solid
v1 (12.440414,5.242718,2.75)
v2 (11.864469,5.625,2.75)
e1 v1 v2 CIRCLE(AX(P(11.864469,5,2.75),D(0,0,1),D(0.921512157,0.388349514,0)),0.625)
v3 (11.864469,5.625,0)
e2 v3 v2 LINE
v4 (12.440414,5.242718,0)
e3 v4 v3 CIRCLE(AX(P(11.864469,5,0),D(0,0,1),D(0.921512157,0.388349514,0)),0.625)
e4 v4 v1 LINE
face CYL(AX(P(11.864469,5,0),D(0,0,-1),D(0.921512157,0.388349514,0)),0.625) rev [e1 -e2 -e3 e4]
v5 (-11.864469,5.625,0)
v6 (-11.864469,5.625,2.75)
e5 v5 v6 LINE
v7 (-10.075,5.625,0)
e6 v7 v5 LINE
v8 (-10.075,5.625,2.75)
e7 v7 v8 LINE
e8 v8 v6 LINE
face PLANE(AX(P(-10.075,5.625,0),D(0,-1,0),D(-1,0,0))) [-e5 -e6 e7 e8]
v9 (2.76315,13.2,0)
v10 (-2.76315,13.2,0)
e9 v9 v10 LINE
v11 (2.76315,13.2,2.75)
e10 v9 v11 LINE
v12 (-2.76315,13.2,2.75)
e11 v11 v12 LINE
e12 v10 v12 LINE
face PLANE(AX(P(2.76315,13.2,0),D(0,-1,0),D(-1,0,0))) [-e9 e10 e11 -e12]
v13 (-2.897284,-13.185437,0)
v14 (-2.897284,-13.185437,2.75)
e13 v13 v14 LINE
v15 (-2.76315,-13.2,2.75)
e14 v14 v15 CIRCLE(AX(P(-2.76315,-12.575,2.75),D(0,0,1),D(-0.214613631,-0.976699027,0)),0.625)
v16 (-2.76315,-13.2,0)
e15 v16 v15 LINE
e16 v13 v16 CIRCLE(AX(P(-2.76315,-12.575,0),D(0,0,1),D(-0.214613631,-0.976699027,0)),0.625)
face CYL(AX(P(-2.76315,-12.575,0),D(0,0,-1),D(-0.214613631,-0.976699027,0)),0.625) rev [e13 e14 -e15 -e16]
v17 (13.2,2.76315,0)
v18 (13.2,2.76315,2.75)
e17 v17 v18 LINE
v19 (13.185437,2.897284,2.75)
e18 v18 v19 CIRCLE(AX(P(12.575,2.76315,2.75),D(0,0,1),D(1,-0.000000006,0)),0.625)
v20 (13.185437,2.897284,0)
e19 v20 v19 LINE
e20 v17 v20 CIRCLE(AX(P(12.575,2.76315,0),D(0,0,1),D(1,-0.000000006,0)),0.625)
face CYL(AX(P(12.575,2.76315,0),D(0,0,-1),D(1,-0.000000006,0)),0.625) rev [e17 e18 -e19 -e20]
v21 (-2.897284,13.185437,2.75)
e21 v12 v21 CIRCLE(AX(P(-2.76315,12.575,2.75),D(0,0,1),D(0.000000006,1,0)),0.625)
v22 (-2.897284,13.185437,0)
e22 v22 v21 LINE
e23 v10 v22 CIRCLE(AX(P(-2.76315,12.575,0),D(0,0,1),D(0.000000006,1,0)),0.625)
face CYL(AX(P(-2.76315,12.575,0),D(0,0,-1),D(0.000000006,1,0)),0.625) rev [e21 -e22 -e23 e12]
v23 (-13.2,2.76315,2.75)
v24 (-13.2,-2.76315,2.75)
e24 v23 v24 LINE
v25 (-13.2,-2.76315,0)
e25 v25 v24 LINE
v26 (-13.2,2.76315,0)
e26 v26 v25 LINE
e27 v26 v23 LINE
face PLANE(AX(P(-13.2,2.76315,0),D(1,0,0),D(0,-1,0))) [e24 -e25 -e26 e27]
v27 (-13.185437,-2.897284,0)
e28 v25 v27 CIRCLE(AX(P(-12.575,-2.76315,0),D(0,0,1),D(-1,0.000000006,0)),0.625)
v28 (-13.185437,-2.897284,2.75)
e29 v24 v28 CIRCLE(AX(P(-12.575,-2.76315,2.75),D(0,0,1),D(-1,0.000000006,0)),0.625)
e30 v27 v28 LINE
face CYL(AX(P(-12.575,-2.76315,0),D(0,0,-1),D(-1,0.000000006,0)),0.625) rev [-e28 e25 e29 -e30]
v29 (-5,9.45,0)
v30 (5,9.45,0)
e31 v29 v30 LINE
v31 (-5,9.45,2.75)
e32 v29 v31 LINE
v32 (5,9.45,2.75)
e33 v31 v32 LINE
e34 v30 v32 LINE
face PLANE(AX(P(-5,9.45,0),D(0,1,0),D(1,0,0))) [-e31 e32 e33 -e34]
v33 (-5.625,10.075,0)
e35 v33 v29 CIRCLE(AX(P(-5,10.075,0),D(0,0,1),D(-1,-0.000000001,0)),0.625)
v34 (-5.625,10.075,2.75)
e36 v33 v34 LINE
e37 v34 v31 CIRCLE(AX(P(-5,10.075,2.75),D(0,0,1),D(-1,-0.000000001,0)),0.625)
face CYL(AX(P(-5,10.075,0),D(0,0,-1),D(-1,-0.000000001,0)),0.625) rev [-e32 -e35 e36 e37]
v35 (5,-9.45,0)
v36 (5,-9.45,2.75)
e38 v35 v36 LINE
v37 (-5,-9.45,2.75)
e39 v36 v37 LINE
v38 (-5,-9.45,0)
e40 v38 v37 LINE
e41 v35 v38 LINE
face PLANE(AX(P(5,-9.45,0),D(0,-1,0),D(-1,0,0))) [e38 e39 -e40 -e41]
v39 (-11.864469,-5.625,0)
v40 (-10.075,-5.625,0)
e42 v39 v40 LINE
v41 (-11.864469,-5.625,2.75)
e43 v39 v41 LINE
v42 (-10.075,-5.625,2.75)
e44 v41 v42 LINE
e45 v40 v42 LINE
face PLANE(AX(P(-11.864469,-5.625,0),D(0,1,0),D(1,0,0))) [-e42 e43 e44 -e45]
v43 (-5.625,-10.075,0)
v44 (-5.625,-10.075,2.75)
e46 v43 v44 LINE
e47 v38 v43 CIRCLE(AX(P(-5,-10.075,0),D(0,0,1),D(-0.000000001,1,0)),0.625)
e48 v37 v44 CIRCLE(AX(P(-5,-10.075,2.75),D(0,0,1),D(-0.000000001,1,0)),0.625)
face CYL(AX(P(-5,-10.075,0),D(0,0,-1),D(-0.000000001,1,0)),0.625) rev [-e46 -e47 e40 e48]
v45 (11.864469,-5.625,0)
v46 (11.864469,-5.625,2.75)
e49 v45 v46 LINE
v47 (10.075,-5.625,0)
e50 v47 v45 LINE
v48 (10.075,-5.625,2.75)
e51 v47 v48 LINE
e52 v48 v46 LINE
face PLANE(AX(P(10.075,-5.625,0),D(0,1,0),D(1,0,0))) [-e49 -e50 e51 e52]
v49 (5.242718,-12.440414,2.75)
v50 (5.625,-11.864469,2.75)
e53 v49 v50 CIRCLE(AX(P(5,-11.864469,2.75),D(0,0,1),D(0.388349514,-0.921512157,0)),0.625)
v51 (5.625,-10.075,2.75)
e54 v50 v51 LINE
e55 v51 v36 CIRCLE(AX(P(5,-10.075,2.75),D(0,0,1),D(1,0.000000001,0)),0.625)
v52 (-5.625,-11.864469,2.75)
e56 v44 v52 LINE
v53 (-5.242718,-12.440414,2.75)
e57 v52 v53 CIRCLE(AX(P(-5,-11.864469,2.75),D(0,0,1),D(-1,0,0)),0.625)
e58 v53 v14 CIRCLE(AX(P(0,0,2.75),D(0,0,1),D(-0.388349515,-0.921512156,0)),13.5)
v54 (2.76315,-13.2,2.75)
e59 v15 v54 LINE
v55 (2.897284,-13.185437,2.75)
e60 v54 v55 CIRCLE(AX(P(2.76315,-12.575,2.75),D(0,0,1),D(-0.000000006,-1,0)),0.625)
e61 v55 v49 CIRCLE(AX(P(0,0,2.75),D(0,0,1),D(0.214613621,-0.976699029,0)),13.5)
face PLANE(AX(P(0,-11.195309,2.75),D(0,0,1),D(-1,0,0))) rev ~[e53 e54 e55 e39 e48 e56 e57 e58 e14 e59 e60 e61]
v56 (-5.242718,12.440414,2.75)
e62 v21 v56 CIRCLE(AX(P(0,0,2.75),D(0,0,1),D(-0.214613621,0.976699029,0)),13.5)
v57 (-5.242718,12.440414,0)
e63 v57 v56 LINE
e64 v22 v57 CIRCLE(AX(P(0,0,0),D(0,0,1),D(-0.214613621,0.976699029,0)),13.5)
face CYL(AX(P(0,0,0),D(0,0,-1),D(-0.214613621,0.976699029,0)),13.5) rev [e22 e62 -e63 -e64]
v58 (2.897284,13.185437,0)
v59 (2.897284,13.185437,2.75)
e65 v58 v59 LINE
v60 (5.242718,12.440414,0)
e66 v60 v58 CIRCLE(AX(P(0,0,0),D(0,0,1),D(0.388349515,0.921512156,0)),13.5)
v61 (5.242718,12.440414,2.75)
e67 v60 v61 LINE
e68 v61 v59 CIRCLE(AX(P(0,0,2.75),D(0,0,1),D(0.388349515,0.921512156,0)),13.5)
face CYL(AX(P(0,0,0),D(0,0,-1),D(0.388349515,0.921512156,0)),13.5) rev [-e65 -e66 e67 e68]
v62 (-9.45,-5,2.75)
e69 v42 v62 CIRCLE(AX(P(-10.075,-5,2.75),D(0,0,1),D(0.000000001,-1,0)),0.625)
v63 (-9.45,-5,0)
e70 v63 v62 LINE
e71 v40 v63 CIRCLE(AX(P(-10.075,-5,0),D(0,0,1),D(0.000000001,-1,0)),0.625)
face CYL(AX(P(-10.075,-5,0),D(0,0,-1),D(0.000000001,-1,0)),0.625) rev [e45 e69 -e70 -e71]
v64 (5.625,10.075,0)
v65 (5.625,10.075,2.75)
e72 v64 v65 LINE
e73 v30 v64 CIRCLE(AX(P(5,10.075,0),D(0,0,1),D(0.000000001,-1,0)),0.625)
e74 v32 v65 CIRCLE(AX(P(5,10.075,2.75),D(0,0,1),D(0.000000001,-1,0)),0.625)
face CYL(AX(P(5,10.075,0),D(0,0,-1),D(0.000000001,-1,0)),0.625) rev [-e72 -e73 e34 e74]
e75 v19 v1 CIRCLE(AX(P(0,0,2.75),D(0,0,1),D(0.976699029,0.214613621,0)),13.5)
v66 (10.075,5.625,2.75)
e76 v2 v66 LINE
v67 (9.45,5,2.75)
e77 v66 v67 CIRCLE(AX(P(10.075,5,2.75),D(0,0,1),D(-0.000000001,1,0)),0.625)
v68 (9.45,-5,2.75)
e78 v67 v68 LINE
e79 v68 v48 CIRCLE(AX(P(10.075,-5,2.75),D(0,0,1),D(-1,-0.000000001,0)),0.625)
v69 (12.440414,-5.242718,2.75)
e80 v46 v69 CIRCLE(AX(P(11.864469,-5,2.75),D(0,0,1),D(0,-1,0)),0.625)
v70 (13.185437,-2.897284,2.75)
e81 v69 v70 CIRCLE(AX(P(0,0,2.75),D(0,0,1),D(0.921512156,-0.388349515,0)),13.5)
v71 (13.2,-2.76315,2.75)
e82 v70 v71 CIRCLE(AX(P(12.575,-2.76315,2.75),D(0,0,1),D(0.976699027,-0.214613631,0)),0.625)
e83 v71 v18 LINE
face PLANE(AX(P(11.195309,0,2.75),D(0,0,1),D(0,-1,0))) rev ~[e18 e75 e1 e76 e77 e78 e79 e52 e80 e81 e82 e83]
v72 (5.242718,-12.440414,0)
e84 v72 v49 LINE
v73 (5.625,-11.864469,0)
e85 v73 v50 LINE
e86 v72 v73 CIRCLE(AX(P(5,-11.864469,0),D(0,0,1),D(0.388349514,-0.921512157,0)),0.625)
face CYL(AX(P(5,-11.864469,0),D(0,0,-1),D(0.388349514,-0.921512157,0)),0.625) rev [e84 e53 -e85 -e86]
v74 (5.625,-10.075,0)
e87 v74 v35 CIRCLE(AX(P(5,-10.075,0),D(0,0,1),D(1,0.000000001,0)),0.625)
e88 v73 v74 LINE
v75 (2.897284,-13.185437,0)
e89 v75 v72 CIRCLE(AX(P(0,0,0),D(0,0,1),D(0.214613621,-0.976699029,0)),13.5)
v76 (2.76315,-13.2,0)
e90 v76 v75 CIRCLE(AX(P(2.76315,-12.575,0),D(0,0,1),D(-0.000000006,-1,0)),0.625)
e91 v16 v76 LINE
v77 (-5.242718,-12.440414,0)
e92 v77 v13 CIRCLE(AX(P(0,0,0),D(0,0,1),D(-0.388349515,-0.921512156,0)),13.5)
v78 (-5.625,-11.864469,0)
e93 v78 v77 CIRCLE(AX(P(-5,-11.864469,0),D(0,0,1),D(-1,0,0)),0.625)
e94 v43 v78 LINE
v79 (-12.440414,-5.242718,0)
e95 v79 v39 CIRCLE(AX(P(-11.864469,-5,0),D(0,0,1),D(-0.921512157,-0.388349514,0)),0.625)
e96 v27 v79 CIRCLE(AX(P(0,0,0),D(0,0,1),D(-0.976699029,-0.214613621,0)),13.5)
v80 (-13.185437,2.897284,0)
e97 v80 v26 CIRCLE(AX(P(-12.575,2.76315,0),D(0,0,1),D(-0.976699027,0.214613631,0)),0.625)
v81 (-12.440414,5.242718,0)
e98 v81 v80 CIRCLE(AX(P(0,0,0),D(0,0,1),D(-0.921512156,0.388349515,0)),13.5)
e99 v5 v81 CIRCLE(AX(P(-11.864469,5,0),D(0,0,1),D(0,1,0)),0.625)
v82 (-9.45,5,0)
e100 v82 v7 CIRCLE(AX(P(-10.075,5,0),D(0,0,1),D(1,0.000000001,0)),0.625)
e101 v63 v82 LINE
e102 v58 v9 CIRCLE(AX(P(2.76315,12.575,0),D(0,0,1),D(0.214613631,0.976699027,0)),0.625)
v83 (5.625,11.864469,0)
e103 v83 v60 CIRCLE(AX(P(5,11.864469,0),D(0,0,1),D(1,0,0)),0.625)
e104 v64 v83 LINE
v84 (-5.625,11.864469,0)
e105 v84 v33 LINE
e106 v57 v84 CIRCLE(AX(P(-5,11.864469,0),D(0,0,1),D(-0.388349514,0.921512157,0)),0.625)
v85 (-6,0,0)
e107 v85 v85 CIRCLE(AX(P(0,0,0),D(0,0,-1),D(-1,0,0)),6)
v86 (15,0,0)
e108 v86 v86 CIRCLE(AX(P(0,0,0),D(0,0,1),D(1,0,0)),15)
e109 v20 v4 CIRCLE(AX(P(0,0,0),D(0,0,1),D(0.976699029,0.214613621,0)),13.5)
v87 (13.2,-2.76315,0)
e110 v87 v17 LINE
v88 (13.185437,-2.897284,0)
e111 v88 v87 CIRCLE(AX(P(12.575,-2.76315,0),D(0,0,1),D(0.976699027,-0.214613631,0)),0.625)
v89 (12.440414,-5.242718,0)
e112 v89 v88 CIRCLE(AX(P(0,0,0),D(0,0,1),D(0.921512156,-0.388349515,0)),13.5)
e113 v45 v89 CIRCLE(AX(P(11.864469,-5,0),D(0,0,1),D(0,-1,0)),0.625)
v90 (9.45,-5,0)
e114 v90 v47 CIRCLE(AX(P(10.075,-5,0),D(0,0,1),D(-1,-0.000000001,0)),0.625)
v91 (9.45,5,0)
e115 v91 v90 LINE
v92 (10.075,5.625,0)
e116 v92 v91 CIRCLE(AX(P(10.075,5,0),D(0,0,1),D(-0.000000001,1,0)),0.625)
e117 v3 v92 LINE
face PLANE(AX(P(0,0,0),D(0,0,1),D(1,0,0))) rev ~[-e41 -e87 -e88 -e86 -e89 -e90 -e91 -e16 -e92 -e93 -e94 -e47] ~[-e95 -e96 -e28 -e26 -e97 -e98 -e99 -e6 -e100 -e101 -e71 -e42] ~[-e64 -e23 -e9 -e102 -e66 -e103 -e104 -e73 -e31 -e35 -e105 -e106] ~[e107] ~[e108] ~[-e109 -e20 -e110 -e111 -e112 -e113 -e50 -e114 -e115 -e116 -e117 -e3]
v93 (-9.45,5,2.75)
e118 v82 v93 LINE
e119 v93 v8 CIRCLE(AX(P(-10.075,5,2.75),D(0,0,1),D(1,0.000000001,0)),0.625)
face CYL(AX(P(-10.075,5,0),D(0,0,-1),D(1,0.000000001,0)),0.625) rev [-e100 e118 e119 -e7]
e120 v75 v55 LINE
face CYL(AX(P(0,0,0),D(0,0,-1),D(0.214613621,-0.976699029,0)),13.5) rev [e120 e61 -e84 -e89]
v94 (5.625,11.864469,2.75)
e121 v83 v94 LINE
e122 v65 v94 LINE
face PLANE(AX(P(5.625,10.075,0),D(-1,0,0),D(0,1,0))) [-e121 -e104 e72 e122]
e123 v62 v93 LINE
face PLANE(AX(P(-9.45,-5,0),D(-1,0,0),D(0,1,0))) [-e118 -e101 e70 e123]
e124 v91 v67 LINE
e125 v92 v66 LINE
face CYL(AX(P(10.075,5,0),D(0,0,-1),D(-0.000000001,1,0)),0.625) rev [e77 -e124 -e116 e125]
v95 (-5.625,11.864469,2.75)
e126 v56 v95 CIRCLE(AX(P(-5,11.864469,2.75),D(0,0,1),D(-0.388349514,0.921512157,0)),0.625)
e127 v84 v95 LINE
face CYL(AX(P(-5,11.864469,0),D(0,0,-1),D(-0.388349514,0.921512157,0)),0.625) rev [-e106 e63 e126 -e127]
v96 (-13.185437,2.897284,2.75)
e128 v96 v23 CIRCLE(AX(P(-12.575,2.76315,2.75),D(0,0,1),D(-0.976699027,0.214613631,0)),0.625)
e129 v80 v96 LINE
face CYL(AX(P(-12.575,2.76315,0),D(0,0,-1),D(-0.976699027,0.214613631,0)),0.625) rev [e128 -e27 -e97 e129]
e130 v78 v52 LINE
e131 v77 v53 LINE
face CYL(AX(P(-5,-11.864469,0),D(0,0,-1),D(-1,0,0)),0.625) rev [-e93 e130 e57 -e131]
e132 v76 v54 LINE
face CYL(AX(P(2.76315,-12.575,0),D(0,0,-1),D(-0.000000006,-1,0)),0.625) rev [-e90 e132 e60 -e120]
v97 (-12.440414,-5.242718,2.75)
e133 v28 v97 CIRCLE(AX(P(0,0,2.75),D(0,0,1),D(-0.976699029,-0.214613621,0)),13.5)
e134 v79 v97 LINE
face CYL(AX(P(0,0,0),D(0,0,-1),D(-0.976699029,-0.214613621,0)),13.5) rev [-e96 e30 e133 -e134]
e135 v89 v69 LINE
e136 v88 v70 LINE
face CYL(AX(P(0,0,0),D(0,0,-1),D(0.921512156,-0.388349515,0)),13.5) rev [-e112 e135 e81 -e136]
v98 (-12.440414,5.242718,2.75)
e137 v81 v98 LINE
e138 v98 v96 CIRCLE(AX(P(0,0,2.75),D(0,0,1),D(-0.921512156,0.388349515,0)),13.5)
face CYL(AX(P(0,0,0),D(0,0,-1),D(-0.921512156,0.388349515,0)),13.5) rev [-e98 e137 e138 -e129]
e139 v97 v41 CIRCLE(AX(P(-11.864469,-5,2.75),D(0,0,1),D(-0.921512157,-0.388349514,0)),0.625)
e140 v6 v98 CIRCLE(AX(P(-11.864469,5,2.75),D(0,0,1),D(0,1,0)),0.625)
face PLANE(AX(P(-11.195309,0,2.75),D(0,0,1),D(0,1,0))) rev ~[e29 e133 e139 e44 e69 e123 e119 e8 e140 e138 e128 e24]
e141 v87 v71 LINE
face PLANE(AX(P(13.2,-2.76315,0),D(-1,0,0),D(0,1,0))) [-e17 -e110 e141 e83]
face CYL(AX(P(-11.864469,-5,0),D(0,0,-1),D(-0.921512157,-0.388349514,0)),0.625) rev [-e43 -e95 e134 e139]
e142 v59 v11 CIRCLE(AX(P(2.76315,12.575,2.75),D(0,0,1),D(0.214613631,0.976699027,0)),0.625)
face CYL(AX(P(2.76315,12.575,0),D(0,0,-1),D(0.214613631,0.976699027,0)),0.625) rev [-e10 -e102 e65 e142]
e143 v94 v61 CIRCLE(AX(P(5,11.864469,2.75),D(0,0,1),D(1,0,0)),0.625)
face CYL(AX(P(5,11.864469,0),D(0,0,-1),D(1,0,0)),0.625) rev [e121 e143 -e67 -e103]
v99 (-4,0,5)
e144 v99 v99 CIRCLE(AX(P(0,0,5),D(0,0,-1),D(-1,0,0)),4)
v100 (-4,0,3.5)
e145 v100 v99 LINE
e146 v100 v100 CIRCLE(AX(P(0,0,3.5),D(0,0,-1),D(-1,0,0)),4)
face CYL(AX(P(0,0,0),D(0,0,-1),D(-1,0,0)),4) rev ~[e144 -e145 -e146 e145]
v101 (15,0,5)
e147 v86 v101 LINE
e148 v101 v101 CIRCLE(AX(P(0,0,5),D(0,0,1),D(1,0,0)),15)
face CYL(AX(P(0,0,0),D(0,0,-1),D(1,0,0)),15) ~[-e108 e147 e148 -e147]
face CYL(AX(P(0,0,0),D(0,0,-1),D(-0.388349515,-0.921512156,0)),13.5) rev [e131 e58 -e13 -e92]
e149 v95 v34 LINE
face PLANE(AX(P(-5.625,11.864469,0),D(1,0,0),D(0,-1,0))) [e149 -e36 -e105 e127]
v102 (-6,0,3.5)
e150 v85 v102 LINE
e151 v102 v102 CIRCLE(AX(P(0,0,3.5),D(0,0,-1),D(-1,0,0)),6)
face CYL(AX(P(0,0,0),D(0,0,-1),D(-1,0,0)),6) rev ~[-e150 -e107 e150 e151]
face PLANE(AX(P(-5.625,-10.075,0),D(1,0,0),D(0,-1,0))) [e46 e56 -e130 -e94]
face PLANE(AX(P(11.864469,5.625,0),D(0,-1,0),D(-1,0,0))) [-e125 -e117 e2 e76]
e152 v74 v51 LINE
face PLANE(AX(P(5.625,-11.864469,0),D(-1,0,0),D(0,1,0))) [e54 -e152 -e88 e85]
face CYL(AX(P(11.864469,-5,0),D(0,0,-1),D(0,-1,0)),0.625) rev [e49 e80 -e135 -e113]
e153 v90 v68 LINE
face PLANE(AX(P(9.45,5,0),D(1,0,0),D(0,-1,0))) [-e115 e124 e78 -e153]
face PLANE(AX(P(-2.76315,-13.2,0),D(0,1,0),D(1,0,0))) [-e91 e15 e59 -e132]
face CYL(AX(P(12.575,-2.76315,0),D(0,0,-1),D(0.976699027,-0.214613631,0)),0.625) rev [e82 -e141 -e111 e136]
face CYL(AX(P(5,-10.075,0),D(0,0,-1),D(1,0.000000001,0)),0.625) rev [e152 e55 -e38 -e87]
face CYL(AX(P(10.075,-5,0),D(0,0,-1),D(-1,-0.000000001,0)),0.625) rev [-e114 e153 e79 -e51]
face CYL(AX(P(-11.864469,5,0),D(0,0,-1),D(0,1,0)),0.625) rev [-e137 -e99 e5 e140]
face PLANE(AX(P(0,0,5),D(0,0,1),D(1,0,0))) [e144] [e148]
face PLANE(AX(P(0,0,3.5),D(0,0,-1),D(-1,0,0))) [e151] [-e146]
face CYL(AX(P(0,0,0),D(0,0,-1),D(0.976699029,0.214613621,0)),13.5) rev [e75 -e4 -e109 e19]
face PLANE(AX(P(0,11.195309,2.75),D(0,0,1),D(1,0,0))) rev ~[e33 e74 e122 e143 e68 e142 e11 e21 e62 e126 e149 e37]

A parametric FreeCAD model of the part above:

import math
import FreeCAD as App
import Part
import Sketcher

V = App.Vector
Q = App.Units.Quantity

doc = App.newDocument("Part")
body = doc.addObject("PartDesign::Body", "Body")

sketch1 = doc.addObject("Sketcher::SketchObject", "Sketch")
body.addObject(sketch1)
sketch1.AttachmentSupport = (doc.XY_Plane, [""])
sketch1.MapMode = "FlatFace"
sketch1.addGeometry(Part.Circle(V(0, 0, 0), V(0, 0, 1), 15), False)
sketch1.addConstraint([
    Sketcher.Constraint("Coincident", 0, 3, -1, 1),
    Sketcher.Constraint("Diameter", 0, Q("30 mm")),
])
pad1 = doc.addObject("PartDesign::Pad", "Pad")
body.addObject(pad1)
pad1.Profile = sketch1
pad1.Length = 5

sketch2 = doc.addObject("Sketcher::SketchObject", "Sketch001")
body.addObject(sketch2)
sketch2.AttachmentSupport = (doc.XY_Plane, [""])
sketch2.MapMode = "FlatFace"
sketch2.addGeometry([
    Part.LineSegment(V(-5.625, 11.864469, 0), V(-5.625, 10.075, 0)),
    Part.ArcOfCircle(Part.Circle(V(-5, 10.075, 0), V(0, 0, 1), 0.625), math.radians(-180), math.radians(-90)),
    Part.LineSegment(V(-5, 9.45, 0), V(5, 9.45, 0)),
    Part.ArcOfCircle(Part.Circle(V(5, 10.075, 0), V(0, 0, 1), 0.625), math.radians(-90), math.radians(0)),
    Part.LineSegment(V(5.625, 10.075, 0), V(5.625, 11.864469, 0)),
    Part.ArcOfCircle(Part.Circle(V(5, 11.864469, 0), V(0, 0, 1), 0.625), math.radians(0), math.radians(67.14816)),
    Part.ArcOfCircle(Part.Circle(V(0, 0, 0), V(0, 0, 1), 13.5), math.radians(67.14816), math.radians(77.60714)),
    Part.ArcOfCircle(Part.Circle(V(2.76315, 12.575, 0), V(0, 0, 1), 0.625), math.radians(77.607139), math.radians(90)),
    Part.LineSegment(V(2.76315, 13.2, 0), V(-2.76315, 13.2, 0)),
    Part.ArcOfCircle(Part.Circle(V(-2.76315, 12.575, 0), V(0, 0, 1), 0.625), math.radians(90), math.radians(102.392861)),
    Part.ArcOfCircle(Part.Circle(V(0, 0, 0), V(0, 0, 1), 13.5), math.radians(102.39286), math.radians(112.85184)),
    Part.ArcOfCircle(Part.Circle(V(-5, 11.864469, 0), V(0, 0, 1), 0.625), math.radians(112.85184), math.radians(180)),
], False)
sketch2.addConstraint([
    Sketcher.Constraint("Tangent", 0, 2, 1, 1),
    Sketcher.Constraint("Tangent", 1, 2, 2, 1),
    Sketcher.Constraint("Tangent", 2, 2, 3, 1),
    Sketcher.Constraint("Tangent", 3, 2, 4, 1),
    Sketcher.Constraint("Tangent", 4, 2, 5, 1),
    Sketcher.Constraint("Tangent", 5, 2, 6, 1),
    Sketcher.Constraint("Tangent", 6, 2, 7, 1),
    Sketcher.Constraint("Tangent", 7, 2, 8, 1),
    Sketcher.Constraint("Tangent", 8, 2, 9, 1),
    Sketcher.Constraint("Tangent", 9, 2, 10, 1),
    Sketcher.Constraint("Tangent", 10, 2, 11, 1),
    Sketcher.Constraint("Tangent", 11, 2, 0, 1),
    Sketcher.Constraint("Vertical", 0),
    Sketcher.Constraint("Horizontal", 2),
    Sketcher.Constraint("Vertical", 4),
    Sketcher.Constraint("Horizontal", 8),
    Sketcher.Constraint("Coincident", 6, 3, -1, 1),
    Sketcher.Constraint("Coincident", 10, 3, -1, 1),
    Sketcher.Constraint("Equal", 1, 3),
    Sketcher.Constraint("Equal", 3, 5),
    Sketcher.Constraint("Equal", 5, 7),
    Sketcher.Constraint("Equal", 7, 9),
    Sketcher.Constraint("Equal", 6, 10),
    Sketcher.Constraint("Equal", 9, 11),
    Sketcher.Constraint("Horizontal", 5, 3, 11, 3),
    Sketcher.Constraint("Radius", 6, Q("13.5 mm")),
    Sketcher.Constraint("DistanceX", 2, 1, 2, 2, Q("10 mm")),
    Sketcher.Constraint("Radius", 1, Q("0.625 mm")),
    Sketcher.Constraint("DistanceY", -1, 1, 7, 2, Q("13.2 mm")),
    Sketcher.Constraint("DistanceY", 3, 3, 7, 3, Q("2.5 mm")),
])
pocket1 = doc.addObject("PartDesign::Pocket", "Pocket")
body.addObject(pocket1)
pocket1.Profile = sketch2
pocket1.Length = 2.75
pocket1.Reversed = True
doc.recompute()

polarpattern = doc.addObject("PartDesign::PolarPattern", "PolarPattern")
body.addObject(polarpattern)
polarpattern.Originals = [pocket1]
polarpattern.Axis = (doc.Z_Axis, [""])
polarpattern.Angle = 360
polarpattern.Occurrences = 4
body.Tip = polarpattern

sketch3 = doc.addObject("Sketcher::SketchObject", "Sketch002")
body.addObject(sketch3)
sketch3.AttachmentSupport = (doc.XY_Plane, [""])
sketch3.MapMode = "FlatFace"
sketch3.addGeometry(Part.Circle(V(0, 0, 0), V(0, 0, 1), 4), False)
sketch3.addConstraint([
    Sketcher.Constraint("Coincident", 0, 3, -1, 1),
    Sketcher.Constraint("Diameter", 0, Q("8 mm")),
])
pocket2 = doc.addObject("PartDesign::Pocket", "Pocket001")
body.addObject(pocket2)
pocket2.Profile = sketch3
pocket2.Type = "ThroughAll"
pocket2.Reversed = True

sketch4 = doc.addObject("Sketcher::SketchObject", "Sketch003")
body.addObject(sketch4)
sketch4.AttachmentSupport = (doc.XY_Plane, [""])
sketch4.MapMode = "FlatFace"
sketch4.addGeometry([
    Part.Circle(V(0, 0, 0), V(0, 0, 1), 6),
    Part.Circle(V(0, 0, 0), V(0, 0, 1), 4),
], False)
sketch4.addConstraint([
    Sketcher.Constraint("Coincident", 0, 3, -1, 1),
    Sketcher.Constraint("Coincident", 1, 3, -1, 1),
    Sketcher.Constraint("Diameter", 0, Q("12 mm")),
    Sketcher.Constraint("Diameter", 1, Q("8 mm")),
])
pocket3 = doc.addObject("PartDesign::Pocket", "Pocket002")
body.addObject(pocket3)
pocket3.Profile = sketch4
pocket3.Length = 3.5
pocket3.Reversed = True

doc.recompute()
